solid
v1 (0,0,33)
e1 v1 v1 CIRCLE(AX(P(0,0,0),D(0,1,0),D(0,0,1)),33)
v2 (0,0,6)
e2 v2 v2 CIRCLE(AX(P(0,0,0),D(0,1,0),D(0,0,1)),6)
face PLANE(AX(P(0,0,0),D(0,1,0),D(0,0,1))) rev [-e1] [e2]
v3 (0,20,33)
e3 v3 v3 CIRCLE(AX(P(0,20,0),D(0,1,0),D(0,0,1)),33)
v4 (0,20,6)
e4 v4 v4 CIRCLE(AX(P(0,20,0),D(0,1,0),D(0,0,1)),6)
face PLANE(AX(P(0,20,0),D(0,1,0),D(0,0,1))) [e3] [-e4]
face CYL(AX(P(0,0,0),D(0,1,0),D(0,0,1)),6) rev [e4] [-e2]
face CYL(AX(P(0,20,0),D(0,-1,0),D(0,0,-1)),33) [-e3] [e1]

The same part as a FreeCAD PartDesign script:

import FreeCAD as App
import Part
import Sketcher

V = App.Vector

doc = App.newDocument("Part")
body = doc.addObject("PartDesign::Body", "Body")

sketch1 = doc.addObject("Sketcher::SketchObject", "Sketch")
body.addObject(sketch1)
sketch1.AttachmentSupport = (doc.XZ_Plane, [""])
sketch1.MapMode = "FlatFace"
sketch1.addGeometry(Part.Circle(V(0, 0, 0), V(0, 0, 1), 33), False)
sketch1.addConstraint(Sketcher.Constraint("Coincident", 0, 3, -1, 1))
sketch1.addConstraint(Sketcher.Constraint("Diameter", 0, 66.0))
pad1 = doc.addObject("PartDesign::Pad", "Pad")
body.addObject(pad1)
pad1.Profile = sketch1
pad1.Length = 20
pad1.Reversed = True

sketch2 = doc.addObject("Sketcher::SketchObject", "Sketch001")
body.addObject(sketch2)
sketch2.AttachmentSupport = (doc.XZ_Plane, [""])
sketch2.MapMode = "FlatFace"
sketch2.AttachmentOffset = App.Placement(V(0, 0, -20), App.Rotation())
sketch2.addGeometry(Part.Circle(V(0, 0, 0), V(0, 0, 1), 6), False)
sketch2.addConstraint(Sketcher.Constraint("Coincident", 0, 3, -1, 1))
sketch2.addConstraint(Sketcher.Constraint("Diameter", 0, 12.0))
pocket1 = doc.addObject("PartDesign::Pocket", "Pocket")
body.addObject(pocket1)
pocket1.Profile = sketch2
pocket1.Length = 20
pocket1.Reversed = True

doc.recompute()
